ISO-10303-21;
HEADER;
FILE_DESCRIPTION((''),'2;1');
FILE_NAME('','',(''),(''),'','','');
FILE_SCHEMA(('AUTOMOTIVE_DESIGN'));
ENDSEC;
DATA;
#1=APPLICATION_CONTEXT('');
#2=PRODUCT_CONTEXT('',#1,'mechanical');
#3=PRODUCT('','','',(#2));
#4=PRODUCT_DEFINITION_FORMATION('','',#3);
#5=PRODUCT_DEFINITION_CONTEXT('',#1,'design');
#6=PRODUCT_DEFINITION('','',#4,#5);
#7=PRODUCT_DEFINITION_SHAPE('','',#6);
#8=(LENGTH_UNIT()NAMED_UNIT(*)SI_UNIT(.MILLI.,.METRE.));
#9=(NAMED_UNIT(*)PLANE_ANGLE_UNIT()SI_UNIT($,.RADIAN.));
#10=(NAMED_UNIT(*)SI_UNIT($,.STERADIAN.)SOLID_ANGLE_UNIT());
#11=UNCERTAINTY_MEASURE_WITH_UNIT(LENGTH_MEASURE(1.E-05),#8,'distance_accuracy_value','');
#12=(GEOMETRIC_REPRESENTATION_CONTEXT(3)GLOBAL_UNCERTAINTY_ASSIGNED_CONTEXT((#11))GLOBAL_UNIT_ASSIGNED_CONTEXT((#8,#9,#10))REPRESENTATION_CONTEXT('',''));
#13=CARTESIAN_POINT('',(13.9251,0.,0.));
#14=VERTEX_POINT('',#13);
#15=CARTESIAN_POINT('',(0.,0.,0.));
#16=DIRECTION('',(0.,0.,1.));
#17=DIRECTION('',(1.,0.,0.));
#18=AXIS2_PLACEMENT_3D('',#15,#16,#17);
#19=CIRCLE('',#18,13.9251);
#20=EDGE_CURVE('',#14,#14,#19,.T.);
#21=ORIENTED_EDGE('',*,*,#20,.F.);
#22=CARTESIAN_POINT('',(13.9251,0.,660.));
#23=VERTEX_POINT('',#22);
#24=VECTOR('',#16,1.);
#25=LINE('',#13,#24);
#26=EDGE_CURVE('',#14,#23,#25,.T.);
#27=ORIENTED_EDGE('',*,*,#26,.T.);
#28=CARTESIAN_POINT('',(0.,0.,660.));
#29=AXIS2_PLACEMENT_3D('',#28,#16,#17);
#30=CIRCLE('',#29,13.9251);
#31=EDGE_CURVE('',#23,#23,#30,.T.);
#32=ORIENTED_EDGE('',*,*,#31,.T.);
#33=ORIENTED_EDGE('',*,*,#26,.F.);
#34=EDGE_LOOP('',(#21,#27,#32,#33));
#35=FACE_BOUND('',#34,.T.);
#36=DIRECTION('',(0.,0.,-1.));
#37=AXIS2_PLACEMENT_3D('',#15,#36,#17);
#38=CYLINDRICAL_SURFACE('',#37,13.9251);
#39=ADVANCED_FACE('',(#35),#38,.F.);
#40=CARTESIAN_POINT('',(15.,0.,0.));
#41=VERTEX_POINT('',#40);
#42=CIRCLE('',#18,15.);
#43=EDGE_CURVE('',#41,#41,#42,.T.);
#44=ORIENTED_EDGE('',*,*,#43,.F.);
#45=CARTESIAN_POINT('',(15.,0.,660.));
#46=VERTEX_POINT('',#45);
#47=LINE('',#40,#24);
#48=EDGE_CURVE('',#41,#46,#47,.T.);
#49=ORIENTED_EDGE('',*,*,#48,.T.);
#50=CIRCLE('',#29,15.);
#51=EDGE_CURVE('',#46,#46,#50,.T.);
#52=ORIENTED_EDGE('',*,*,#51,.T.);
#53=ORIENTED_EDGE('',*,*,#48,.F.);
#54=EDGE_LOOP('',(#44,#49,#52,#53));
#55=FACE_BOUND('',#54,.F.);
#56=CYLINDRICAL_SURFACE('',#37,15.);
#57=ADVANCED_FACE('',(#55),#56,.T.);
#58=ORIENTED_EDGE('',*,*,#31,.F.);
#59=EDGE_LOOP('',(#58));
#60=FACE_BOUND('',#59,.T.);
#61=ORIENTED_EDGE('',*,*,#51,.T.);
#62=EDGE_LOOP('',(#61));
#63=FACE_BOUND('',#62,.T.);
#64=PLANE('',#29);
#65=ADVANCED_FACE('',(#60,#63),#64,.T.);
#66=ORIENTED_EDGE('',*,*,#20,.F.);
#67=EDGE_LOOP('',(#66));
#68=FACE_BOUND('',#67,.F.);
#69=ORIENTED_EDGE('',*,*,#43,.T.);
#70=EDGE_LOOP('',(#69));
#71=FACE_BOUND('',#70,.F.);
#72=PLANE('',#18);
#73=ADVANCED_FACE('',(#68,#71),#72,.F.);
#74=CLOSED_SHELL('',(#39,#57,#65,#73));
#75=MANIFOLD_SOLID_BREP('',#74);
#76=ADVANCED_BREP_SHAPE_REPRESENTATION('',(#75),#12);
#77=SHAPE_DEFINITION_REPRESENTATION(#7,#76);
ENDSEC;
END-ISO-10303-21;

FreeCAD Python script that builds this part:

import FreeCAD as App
import Part
import Sketcher

V = App.Vector

doc = App.newDocument("Part")
body = doc.addObject("PartDesign::Body", "Body")

# Sketch on XY plane
sketch1 = body.newObject("Sketcher::SketchObject", "Sketch")
sketch1.AttachmentSupport = (doc.getObject("XY_Plane"), [""])
sketch1.MapMode = "FlatFace"
sketch1.addGeometry([
    Part.Circle(V(0, 0, 0), V(0, 0, 1), 15),
    Part.Circle(V(0, 0, 0), V(0, 0, 1), 13.9251),
], False)
sketch1.addConstraint([
    Sketcher.Constraint("Coincident", 0, 3, -1, 1),
    Sketcher.Constraint("Coincident", 1, 3, -1, 1),
    Sketcher.Constraint("Diameter", 0, 30.0),
    Sketcher.Constraint("Diameter", 1, 27.8502),
])
pad1 = body.newObject("PartDesign::Pad", "Pad")
pad1.Profile = sketch1
pad1.Length = 660

doc.recompute()
